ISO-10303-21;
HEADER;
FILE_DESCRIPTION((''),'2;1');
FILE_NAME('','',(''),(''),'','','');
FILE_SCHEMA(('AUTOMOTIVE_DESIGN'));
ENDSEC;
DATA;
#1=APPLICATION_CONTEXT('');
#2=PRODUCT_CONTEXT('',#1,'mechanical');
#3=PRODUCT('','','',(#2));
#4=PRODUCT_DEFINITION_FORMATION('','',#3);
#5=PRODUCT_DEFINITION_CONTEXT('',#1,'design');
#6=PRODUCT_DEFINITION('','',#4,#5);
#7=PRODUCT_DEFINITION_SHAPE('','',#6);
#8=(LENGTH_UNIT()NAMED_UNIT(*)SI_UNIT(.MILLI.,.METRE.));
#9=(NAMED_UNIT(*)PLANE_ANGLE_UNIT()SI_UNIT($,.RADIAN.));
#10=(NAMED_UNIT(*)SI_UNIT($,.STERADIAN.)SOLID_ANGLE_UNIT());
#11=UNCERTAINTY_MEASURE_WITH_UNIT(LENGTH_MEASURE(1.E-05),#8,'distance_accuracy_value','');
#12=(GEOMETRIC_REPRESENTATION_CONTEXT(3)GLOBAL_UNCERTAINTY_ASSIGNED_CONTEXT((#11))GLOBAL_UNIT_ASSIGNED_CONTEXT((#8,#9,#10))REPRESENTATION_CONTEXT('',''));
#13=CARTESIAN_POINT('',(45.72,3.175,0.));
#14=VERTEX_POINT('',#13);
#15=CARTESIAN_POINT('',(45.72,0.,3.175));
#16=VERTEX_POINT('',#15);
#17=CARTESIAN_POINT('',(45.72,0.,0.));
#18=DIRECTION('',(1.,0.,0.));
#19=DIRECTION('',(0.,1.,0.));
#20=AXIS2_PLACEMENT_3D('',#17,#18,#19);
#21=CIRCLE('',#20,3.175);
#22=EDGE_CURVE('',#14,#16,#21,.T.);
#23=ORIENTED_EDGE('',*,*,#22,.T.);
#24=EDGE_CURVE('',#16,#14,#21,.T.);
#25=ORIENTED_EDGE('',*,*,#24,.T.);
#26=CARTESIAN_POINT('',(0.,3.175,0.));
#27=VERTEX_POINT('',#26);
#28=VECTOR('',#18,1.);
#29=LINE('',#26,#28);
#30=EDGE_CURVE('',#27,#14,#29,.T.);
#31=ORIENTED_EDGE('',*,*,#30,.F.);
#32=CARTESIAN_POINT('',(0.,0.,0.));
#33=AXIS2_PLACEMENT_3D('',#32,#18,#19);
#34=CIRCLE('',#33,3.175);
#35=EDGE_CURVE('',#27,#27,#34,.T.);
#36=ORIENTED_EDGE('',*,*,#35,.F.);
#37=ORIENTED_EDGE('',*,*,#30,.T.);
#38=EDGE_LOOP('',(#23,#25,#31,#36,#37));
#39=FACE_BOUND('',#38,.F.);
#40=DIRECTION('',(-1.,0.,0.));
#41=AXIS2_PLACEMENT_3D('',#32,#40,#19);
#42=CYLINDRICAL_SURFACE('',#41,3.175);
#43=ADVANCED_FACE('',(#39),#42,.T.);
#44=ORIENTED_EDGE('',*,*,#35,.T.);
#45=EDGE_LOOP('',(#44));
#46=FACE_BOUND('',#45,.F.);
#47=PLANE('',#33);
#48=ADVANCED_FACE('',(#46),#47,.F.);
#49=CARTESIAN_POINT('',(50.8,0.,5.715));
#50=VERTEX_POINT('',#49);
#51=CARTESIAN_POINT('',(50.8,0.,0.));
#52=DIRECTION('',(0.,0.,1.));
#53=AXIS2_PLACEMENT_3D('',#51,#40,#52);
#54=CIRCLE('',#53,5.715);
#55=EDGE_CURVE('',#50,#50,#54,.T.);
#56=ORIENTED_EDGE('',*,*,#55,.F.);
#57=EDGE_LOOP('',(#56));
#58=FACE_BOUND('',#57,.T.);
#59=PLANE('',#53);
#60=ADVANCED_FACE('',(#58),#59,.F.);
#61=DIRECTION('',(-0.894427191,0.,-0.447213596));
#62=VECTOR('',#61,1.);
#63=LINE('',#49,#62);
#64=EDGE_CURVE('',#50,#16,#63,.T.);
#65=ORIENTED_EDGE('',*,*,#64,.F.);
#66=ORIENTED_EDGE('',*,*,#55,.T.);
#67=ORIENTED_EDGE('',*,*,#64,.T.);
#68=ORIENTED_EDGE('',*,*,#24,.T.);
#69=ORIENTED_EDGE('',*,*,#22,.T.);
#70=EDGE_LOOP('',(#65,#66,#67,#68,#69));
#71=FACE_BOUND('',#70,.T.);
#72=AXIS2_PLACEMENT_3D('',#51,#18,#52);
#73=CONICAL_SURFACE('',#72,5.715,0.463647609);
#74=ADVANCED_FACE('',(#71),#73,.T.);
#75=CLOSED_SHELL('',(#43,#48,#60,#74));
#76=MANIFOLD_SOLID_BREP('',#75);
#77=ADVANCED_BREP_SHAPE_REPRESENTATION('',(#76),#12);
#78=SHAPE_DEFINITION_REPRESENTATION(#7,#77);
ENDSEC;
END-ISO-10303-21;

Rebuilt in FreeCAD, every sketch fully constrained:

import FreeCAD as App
import Part
import Sketcher
from FreeCAD import Vector
Q = App.Units.Quantity

doc = App.newDocument("Part")
params = doc.addObject("Spreadsheet::Sheet", "Params")
for row, (alias, value) in enumerate([
    ("sketch1_diameter", "0.25 in"),
    ("pad1_length", "1.8 in"),
    ("sketch2_width", "0.2 in"),
    ("sketch2_height", "0.125 in"),
    ("revolution_angle", "360 deg"),
], start=1):
    params.set(f"A{row}", alias)
    params.set(f"B{row}", "=" + value)
    params.setAlias(f"B{row}", alias)

body = doc.addObject("PartDesign::Body", "Body")

# Sketch on YZ plane
sketch1 = body.newObject("Sketcher::SketchObject", "Sketch")
sketch1.AttachmentSupport = (doc.getObject("YZ_Plane"), [""])
sketch1.MapMode = "FlatFace"
sketch1.addGeometry(Part.Circle(Vector(0, 0, 0), Vector(0, 0, 1), 3.175), False)
sketch1.addConstraint(Sketcher.Constraint("Coincident", 0, 3, -1, 1))
sketch1.addConstraint(Sketcher.Constraint("Diameter", 0, Q("0.25 in")))
sketch1.setExpression("Constraints[1]", "Params.sketch1_diameter")
pad1 = body.newObject("PartDesign::Pad", "Pad")
pad1.Profile = sketch1
pad1.setExpression("Length", "Params.pad1_length")

# Sketch on XZ plane
sketch2 = body.newObject("Sketcher::SketchObject", "Sketch001")
sketch2.AttachmentSupport = (doc.getObject("XZ_Plane"), [""])
sketch2.MapMode = "FlatFace"
sketch2.addGeometry(Part.LineSegment(Vector(50.8, 5.715, 0), Vector(45.72, 3.175, 0)), False)
sketch2.addGeometry(Part.LineSegment(Vector(45.72, 3.175, 0), Vector(45.72, 0, 0)), False)
sketch2.addGeometry(Part.LineSegment(Vector(45.72, 0, 0), Vector(50.8, 0, 0)), False)
sketch2.addGeometry(Part.LineSegment(Vector(50.8, 0, 0), Vector(50.8, 5.715, 0)), False)
sketch2.addConstraint(Sketcher.Constraint("Coincident", 0, 2, 1, 1))
sketch2.addConstraint(Sketcher.Constraint("Coincident", 1, 2, 2, 1))
sketch2.addConstraint(Sketcher.Constraint("Coincident", 2, 2, 3, 1))
sketch2.addConstraint(Sketcher.Constraint("Coincident", 3, 2, 0, 1))
sketch2.addConstraint(Sketcher.Constraint("Vertical", 1))
sketch2.addConstraint(Sketcher.Constraint("Horizontal", 2))
sketch2.addConstraint(Sketcher.Constraint("Vertical", 3))
sketch2.addConstraint(Sketcher.Constraint("PointOnObject", 1, 2, -1))
sketch2.addConstraint(Sketcher.Constraint("DistanceX", 2, 1, 2, 2, Q("0.2 in")))
sketch2.addConstraint(Sketcher.Constraint("DistanceX", -1, 1, 2, 2, Q("2 in")))
sketch2.addConstraint(Sketcher.Constraint("DistanceY", 0, 2, 3, 2, Q("0.1 in")))
sketch2.addConstraint(Sketcher.Constraint("DistanceY", 1, 2, 1, 1, Q("0.125 in")))
sketch2.setExpression("Constraints[8]", "Params.sketch2_width")
sketch2.setExpression("Constraints[11]", "Params.sketch2_height")
revolution = body.newObject("PartDesign::Revolution", "Revolution")
revolution.Profile = sketch2
revolution.ReferenceAxis = (sketch2, ["H_Axis"])
revolution.setExpression("Angle", "Params.revolution_angle")

doc.recompute()
